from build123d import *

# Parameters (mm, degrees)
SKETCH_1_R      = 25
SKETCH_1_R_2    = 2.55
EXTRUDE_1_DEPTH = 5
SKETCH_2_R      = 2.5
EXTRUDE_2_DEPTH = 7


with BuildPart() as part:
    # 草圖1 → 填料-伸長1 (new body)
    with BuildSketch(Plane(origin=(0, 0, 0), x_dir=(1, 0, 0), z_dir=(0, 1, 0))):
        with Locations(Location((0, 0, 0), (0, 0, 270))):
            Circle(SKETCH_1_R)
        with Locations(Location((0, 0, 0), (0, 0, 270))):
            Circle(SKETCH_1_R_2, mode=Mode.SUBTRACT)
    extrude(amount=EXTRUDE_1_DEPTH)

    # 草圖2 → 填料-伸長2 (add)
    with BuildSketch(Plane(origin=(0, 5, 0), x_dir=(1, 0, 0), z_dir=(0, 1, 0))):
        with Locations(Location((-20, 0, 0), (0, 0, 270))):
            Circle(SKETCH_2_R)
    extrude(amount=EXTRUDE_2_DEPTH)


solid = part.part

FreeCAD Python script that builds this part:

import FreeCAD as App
import Part
import Sketcher

V = App.Vector

doc = App.newDocument("Part")
params = doc.addObject("Spreadsheet::Sheet", "Params")
for row, (alias, value) in enumerate([
    ("sketch1_diameter", "50 mm"),
    ("sketch1_diameter2", "5.1 mm"),
    ("pad1_length", "5 mm"),
    ("sketch2_diameter", "5 mm"),
    ("pad2_length", "7 mm"),
], start=1):
    params.set(f"A{row}", alias)
    params.set(f"B{row}", "=" + value)
    params.setAlias(f"B{row}", alias)

body = doc.addObject("PartDesign::Body", "Body")

sketch1 = body.newObject("Sketcher::SketchObject", "Sketch")
sketch1.AttachmentSupport = (doc.getObject("XZ_Plane"), [""])
sketch1.MapMode = "FlatFace"
sketch1.addGeometry([
    Part.Circle(V(0, 0, 0), V(0, 0, 1), 25),
    Part.Circle(V(0, 0, 0), V(0, 0, 1), 2.5),
], False)
sketch1.addConstraint([
    Sketcher.Constraint("Coincident", 0, 3, -1, 1),
    Sketcher.Constraint("Coincident", 1, 3, -1, 1),
    Sketcher.Constraint("Diameter", 0, 50.0),
    Sketcher.Constraint("Diameter", 1, 5.1),
])
sketch1.setExpression("Constraints[2]", "Params.sketch1_diameter")
sketch1.setExpression("Constraints[3]", "Params.sketch1_diameter2")
pad1 = body.newObject("PartDesign::Pad", "Pad")
pad1.Profile = sketch1
pad1.setExpression("Length", "Params.pad1_length")
pad1.Reversed = True

sketch2 = body.newObject("Sketcher::SketchObject", "Sketch001")
sketch2.AttachmentSupport = (doc.getObject("XZ_Plane"), [""])
sketch2.MapMode = "FlatFace"
sketch2.AttachmentOffset = App.Placement(V(0, 0, -5), App.Rotation())
sketch2.addGeometry(Part.Circle(V(-20, 0, 0), V(0, 0, 1), 2.5), False)
sketch2.addConstraint([
    Sketcher.Constraint("PointOnObject", 0, 3, -1),
    Sketcher.Constraint("Diameter", 0, 5.0),
    Sketcher.Constraint("DistanceX", 0, 3, -1, 1, 20.0),
])
sketch2.setExpression("Constraints[1]", "Params.sketch2_diameter")
pad2 = body.newObject("PartDesign::Pad", "Pad001")
pad2.Profile = sketch2
pad2.setExpression("Length", "Params.pad2_length")
pad2.Reversed = True

doc.recompute()
